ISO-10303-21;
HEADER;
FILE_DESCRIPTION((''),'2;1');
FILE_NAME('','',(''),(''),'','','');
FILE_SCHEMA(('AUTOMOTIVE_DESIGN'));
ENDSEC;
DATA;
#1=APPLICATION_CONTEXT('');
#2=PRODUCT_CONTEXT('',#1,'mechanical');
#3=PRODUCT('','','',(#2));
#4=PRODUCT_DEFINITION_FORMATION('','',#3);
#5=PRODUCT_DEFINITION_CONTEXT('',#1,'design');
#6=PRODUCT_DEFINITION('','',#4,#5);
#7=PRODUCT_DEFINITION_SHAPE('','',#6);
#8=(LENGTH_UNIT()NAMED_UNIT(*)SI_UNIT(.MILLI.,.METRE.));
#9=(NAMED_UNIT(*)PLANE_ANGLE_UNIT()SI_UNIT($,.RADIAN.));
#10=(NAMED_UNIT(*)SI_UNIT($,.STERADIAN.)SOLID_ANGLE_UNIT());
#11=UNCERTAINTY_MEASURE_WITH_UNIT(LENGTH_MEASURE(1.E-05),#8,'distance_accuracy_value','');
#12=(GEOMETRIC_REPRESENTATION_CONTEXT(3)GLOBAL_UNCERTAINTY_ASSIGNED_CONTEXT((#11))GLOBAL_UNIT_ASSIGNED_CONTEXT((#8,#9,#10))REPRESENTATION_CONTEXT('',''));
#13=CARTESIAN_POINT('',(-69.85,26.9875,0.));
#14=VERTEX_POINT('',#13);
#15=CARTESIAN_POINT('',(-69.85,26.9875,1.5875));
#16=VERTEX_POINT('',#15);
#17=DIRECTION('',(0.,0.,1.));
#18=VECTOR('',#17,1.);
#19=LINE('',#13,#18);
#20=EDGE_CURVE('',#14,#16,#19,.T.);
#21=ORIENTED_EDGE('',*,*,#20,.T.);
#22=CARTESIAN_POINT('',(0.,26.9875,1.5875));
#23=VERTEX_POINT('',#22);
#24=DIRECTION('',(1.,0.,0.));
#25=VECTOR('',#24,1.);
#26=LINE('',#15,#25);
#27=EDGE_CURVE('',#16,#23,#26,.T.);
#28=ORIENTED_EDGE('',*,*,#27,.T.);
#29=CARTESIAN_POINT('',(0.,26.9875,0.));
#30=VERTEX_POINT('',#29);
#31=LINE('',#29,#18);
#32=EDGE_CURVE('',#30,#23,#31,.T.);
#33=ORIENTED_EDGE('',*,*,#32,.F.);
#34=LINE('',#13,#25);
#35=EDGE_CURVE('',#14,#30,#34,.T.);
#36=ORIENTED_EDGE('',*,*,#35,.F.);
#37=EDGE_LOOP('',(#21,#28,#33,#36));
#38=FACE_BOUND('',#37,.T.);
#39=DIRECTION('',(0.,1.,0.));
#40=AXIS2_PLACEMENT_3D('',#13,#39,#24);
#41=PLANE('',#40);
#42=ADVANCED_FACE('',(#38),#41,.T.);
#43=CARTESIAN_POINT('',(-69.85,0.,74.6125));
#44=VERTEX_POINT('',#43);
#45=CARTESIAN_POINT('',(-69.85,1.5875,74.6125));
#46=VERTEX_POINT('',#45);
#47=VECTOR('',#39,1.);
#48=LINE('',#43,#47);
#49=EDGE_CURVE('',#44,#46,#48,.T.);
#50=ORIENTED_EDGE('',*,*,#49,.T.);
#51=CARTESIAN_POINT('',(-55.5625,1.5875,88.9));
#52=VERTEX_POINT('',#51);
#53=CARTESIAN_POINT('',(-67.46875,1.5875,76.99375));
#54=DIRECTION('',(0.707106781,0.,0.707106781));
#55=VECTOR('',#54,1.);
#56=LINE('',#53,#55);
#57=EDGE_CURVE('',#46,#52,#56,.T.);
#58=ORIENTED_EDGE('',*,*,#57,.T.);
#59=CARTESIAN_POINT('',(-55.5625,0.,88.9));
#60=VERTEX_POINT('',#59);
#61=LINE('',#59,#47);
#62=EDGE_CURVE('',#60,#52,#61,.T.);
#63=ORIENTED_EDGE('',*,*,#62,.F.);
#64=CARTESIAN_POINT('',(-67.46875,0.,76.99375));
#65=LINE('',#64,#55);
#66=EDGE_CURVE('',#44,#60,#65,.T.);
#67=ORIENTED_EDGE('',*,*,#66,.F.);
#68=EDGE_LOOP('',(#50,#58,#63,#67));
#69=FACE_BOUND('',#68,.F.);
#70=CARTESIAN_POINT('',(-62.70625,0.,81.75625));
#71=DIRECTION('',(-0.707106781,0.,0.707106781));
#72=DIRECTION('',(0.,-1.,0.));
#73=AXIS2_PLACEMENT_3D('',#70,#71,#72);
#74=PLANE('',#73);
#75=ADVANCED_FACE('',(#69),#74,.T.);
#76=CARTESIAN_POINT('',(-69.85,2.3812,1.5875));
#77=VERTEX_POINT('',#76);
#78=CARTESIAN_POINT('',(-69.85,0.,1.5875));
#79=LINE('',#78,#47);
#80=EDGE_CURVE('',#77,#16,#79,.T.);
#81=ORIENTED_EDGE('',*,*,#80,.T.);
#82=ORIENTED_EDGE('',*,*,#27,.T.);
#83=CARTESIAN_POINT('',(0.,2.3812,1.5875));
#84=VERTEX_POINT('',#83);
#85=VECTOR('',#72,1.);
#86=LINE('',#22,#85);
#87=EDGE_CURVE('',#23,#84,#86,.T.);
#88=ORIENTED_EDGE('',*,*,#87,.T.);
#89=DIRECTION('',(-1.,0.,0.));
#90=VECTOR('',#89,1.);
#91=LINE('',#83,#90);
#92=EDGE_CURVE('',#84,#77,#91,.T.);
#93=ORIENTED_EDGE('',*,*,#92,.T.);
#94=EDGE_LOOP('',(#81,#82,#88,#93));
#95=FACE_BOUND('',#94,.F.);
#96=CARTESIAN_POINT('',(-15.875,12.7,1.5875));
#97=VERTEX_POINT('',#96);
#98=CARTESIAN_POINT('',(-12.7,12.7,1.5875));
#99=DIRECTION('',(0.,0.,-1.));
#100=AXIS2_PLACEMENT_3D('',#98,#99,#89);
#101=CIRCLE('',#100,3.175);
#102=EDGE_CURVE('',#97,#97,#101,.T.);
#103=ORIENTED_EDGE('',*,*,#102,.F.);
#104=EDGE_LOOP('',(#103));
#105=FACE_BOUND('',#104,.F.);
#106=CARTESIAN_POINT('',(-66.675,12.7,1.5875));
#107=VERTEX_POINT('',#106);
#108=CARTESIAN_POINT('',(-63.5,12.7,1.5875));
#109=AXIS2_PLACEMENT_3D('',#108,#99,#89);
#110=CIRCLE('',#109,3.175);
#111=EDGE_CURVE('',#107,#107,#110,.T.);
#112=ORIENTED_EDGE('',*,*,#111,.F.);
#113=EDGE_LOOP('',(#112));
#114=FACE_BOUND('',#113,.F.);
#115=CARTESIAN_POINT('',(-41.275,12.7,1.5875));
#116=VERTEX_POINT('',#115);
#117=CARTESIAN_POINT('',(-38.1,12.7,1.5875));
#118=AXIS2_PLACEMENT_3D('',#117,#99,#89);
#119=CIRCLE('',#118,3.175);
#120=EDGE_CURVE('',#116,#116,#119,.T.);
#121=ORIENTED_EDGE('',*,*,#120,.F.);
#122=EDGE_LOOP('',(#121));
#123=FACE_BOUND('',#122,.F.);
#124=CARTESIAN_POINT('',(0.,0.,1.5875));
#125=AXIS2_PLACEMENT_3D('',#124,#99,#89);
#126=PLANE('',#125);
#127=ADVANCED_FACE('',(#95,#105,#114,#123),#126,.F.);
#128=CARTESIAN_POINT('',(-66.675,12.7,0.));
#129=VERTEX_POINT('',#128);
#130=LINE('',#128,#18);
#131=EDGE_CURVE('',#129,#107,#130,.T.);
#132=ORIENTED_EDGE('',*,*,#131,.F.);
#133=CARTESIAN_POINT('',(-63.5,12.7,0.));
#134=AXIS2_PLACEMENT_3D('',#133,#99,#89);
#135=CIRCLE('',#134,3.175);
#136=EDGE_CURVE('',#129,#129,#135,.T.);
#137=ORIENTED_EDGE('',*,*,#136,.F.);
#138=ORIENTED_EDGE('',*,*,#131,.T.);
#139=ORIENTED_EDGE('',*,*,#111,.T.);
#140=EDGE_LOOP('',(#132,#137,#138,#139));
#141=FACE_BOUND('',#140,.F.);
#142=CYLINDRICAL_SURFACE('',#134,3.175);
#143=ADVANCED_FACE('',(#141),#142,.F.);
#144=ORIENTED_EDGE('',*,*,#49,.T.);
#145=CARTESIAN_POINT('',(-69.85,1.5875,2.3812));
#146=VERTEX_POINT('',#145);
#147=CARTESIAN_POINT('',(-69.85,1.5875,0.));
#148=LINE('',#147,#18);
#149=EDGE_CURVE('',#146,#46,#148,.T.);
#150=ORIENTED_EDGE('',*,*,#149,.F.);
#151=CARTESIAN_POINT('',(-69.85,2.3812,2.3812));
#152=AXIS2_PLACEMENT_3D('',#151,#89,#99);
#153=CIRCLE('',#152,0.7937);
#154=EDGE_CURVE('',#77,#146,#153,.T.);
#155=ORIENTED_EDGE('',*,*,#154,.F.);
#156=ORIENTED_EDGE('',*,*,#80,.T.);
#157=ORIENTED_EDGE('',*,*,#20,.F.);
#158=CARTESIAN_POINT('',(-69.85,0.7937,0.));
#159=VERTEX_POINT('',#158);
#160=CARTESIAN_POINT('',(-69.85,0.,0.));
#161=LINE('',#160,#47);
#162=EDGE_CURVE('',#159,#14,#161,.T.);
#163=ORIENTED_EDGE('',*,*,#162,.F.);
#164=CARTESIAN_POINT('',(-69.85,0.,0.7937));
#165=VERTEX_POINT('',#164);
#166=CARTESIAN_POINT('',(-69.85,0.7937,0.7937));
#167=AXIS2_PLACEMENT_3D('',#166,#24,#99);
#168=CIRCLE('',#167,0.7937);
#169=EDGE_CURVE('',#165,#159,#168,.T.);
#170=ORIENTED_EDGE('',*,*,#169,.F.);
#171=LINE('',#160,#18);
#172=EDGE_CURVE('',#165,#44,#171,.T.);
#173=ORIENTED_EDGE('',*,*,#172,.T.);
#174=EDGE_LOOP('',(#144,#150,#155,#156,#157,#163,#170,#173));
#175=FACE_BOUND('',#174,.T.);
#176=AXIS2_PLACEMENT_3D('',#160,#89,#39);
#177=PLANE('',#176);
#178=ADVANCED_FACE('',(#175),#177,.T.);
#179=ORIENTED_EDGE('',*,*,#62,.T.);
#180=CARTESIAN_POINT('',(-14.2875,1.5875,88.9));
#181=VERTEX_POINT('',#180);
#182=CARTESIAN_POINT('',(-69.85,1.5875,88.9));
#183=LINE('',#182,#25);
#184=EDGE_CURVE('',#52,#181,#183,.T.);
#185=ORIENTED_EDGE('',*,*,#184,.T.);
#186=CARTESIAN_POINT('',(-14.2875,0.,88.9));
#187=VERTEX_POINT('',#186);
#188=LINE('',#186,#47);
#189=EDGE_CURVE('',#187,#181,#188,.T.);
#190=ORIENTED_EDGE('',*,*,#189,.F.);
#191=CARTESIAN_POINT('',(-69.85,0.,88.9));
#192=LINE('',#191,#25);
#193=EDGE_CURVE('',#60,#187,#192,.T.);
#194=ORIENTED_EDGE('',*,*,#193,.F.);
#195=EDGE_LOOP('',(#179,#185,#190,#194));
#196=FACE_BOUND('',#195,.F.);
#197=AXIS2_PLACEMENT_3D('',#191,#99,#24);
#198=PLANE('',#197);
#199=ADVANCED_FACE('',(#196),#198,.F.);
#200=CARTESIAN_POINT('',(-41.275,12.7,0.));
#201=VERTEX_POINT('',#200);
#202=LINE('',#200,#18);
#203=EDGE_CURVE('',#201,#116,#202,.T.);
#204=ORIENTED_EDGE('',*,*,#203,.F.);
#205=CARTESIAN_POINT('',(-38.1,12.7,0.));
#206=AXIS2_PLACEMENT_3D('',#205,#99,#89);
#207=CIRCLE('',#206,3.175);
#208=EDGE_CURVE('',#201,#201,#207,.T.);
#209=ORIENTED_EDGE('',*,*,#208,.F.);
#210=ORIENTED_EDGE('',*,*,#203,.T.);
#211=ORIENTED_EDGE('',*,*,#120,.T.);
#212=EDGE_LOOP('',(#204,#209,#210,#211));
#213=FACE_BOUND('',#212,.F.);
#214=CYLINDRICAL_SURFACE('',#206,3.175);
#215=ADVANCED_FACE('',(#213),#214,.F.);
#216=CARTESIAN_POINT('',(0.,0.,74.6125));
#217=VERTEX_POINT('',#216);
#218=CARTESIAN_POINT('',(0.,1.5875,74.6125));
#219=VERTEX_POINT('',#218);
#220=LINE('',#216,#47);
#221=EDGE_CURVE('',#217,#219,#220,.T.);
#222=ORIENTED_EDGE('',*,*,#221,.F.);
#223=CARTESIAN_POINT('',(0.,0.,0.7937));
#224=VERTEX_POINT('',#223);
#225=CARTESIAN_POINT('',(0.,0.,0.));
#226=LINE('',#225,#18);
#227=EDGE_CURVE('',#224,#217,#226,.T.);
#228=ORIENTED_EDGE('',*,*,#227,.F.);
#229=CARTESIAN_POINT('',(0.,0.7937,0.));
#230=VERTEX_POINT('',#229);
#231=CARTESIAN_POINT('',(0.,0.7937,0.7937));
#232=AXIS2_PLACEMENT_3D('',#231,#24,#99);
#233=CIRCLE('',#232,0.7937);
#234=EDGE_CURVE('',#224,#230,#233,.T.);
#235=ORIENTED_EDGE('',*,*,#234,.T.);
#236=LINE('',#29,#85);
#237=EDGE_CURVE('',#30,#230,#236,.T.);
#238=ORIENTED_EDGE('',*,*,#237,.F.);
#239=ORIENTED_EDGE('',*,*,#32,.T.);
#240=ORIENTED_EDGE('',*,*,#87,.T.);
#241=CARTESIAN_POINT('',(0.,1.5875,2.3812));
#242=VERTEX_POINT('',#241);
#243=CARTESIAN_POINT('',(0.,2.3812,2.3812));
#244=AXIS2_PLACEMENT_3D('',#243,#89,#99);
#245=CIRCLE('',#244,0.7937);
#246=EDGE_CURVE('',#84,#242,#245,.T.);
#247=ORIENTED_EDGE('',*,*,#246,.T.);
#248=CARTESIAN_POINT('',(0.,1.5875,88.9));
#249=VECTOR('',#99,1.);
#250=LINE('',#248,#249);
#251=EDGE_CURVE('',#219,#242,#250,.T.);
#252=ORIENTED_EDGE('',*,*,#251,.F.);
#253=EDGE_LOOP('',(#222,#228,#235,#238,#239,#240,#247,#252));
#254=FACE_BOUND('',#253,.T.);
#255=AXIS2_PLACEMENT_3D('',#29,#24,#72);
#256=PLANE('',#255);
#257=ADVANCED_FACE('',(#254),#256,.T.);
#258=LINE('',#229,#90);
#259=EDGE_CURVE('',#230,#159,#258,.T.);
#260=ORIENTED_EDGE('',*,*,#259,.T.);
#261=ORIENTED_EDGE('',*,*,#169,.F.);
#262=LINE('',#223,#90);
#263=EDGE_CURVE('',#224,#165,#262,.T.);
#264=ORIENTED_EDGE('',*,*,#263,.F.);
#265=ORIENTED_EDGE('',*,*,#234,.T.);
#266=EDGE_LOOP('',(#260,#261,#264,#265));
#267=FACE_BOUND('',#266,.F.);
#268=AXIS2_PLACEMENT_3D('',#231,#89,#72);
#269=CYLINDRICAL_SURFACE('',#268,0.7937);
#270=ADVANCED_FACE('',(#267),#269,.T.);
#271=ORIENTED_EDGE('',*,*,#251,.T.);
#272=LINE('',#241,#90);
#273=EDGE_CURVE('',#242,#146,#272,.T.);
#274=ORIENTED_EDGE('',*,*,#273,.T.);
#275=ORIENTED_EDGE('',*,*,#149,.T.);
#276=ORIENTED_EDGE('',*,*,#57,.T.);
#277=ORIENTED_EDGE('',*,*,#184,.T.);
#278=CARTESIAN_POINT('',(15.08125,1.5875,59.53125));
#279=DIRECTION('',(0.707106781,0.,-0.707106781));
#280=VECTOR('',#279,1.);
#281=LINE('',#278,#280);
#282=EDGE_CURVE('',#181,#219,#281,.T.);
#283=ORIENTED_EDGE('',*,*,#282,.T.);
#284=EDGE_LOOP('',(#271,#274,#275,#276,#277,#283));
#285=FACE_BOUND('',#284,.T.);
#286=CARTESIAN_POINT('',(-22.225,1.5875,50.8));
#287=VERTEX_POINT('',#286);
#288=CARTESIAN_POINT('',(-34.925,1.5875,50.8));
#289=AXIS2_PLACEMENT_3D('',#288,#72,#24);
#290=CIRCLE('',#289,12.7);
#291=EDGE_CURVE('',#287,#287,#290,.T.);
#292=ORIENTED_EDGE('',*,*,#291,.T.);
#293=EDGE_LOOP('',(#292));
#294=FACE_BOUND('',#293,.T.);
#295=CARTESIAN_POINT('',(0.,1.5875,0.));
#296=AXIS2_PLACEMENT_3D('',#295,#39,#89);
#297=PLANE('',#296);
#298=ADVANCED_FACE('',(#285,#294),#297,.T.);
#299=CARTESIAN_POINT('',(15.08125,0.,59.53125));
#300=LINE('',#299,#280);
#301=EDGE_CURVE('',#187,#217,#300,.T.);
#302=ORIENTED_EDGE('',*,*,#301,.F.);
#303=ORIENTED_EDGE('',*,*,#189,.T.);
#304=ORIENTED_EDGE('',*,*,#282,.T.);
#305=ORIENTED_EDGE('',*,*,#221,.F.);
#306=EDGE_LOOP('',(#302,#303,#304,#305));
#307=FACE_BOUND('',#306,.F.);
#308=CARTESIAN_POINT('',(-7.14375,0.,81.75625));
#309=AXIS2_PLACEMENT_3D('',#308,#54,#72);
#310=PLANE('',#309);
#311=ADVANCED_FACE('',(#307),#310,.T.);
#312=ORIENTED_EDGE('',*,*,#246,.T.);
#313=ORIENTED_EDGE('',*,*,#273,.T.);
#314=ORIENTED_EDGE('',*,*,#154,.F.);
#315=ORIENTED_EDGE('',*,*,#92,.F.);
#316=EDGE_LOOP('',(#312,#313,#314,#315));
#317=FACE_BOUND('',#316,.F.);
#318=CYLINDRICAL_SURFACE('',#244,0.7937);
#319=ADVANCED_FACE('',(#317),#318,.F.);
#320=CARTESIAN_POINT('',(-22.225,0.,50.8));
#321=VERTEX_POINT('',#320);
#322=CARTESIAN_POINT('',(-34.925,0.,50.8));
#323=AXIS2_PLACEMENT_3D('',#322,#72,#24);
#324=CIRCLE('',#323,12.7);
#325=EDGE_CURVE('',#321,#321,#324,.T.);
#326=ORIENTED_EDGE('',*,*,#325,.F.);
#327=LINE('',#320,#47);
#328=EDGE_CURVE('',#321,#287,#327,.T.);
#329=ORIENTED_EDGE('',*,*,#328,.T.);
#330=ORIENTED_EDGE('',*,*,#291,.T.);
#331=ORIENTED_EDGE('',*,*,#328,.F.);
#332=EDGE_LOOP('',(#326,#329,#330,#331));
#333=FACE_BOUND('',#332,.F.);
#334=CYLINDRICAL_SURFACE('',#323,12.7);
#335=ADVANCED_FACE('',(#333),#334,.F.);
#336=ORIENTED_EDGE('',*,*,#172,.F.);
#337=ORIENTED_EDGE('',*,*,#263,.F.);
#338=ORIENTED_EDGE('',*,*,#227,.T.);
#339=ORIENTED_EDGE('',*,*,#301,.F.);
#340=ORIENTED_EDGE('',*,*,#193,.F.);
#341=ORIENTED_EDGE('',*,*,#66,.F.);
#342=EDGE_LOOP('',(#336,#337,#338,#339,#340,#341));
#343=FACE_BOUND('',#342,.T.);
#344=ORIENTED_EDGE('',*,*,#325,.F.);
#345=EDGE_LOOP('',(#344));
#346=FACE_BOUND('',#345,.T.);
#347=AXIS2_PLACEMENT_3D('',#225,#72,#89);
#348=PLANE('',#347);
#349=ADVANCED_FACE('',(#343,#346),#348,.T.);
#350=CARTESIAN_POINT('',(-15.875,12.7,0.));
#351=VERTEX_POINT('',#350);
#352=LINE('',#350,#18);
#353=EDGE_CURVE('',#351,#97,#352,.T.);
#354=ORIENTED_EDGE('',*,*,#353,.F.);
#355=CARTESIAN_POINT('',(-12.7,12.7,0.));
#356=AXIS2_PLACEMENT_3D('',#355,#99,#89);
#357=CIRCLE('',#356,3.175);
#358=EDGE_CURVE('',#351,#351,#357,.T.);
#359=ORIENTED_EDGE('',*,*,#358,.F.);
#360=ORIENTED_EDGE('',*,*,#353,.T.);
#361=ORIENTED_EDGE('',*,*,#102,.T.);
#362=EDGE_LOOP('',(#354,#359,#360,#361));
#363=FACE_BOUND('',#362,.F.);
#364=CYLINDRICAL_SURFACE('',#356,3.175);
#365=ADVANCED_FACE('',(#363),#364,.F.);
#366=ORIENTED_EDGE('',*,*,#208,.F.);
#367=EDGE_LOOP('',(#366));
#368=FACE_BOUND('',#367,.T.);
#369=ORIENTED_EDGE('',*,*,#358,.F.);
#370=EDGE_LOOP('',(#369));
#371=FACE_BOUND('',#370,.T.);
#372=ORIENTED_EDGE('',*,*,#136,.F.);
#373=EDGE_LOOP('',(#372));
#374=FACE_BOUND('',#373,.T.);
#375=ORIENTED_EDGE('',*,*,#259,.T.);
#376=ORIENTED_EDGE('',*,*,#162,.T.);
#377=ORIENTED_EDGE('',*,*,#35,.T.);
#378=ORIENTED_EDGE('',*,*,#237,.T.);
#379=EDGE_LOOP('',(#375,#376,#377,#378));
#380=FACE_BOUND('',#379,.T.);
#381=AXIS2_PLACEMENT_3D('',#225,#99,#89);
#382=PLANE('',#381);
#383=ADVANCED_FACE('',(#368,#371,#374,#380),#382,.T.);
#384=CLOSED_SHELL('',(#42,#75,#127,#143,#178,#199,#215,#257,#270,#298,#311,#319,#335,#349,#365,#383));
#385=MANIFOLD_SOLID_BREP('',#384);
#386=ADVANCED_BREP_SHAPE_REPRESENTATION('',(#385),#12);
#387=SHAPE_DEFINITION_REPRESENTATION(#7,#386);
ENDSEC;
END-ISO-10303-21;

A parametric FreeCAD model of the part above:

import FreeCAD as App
import Part
import Sketcher
Q = App.Units.Quantity


def edges_at(feature, points):
    """Names of the edges that pass closest to the given points."""
    edges = feature.Shape.Edges
    near = lambda p: min(range(len(edges)), key=lambda i: edges[i].distToShape(Part.Vertex(*p))[0])
    return sorted({f"Edge{near(p) + 1}" for p in points})

doc = App.newDocument("Part")
body = doc.addObject("PartDesign::Body", "Body")

sketch1 = doc.addObject("Sketcher::SketchObject", "Sketch")
body.addObject(sketch1)
sketch1.AttachmentSupport = (doc.XZ_Plane, [""])
sketch1.MapMode = "FlatFace"
sketch1.addGeometry([
    Part.LineSegment(App.Vector(-69.85, 0, 0), App.Vector(-69.85, 88.9, 0)),
    Part.LineSegment(App.Vector(-69.85, 88.9, 0), App.Vector(0, 88.9, 0)),
    Part.LineSegment(App.Vector(0, 88.9, 0), App.Vector(0, 0, 0)),
    Part.LineSegment(App.Vector(0, 0, 0), App.Vector(-69.85, 0, 0)),
], False)
sketch1.addConstraint([
    Sketcher.Constraint("Coincident", 0, 2, 1, 1),
    Sketcher.Constraint("Coincident", 1, 2, 2, 1),
    Sketcher.Constraint("Coincident", 2, 2, 3, 1),
    Sketcher.Constraint("Coincident", 3, 2, 0, 1),
    Sketcher.Constraint("Vertical", 0),
    Sketcher.Constraint("Horizontal", 1),
    Sketcher.Constraint("Vertical", 2),
    Sketcher.Constraint("Horizontal", 3),
    Sketcher.Constraint("Coincident", 2, 2, -1, 1),
    Sketcher.Constraint("DistanceY", 0, 1, 0, 2, Q("3.5 in")),
    Sketcher.Constraint("DistanceX", 1, 1, 1, 2, Q("2.75 in")),
])
pad1 = doc.addObject("PartDesign::Pad", "Pad")
body.addObject(pad1)
pad1.Profile = sketch1
pad1.Length = Q("0.0625 in")
pad1.Reversed = True
doc.recompute()

chamfer = doc.addObject("PartDesign::Chamfer", "Chamfer")
body.addObject(chamfer)
chamfer.Base = (pad1, edges_at(pad1, [(-69.85, 0.794, 88.9)]))
chamfer.Size = Q("0.5625 in")
doc.recompute()

chamfer2 = doc.addObject("PartDesign::Chamfer", "Chamfer001")
body.addObject(chamfer2)
chamfer2.Base = (chamfer, edges_at(chamfer, [(0, 0.794, 88.9)]))
chamfer2.Size = Q("0.5625 in")

sketch2 = doc.addObject("Sketcher::SketchObject", "Sketch001")
body.addObject(sketch2)
sketch2.AttachmentSupport = (doc.YZ_Plane, [""])
sketch2.MapMode = "FlatFace"
sketch2.addGeometry([
    Part.LineSegment(App.Vector(0, 1.5875, 0), App.Vector(0, 0, 0)),
    Part.LineSegment(App.Vector(0, 0, 0), App.Vector(1.5875, 0, 0)),
    Part.LineSegment(App.Vector(1.5875, 0, 0), App.Vector(1.5875, 1.5875, 0)),
    Part.LineSegment(App.Vector(1.5875, 1.5875, 0), App.Vector(0, 1.5875, 0)),
], False)
sketch2.addConstraint([
    Sketcher.Constraint("Coincident", 0, 2, 1, 1),
    Sketcher.Constraint("Coincident", 1, 2, 2, 1),
    Sketcher.Constraint("Coincident", 2, 2, 3, 1),
    Sketcher.Constraint("Coincident", 3, 2, 0, 1),
    Sketcher.Constraint("Vertical", 0),
    Sketcher.Constraint("Horizontal", 1),
    Sketcher.Constraint("Vertical", 2),
    Sketcher.Constraint("Horizontal", 3),
    Sketcher.Constraint("Coincident", 0, 2, -1, 1),
    Sketcher.Constraint("Equal", 3, 0),
    Sketcher.Constraint("DistanceX", 1, 1, 1, 2, Q("0.0625 in")),
])
pocket1 = doc.addObject("PartDesign::Pocket", "Pocket")
body.addObject(pocket1)
pocket1.Profile = sketch2
pocket1.Length = Q("2.75 in")

sketch3 = doc.addObject("Sketcher::SketchObject", "Sketch002")
body.addObject(sketch3)
sketch3.AttachmentSupport = (doc.XY_Plane, [""])
sketch3.MapMode = "FlatFace"
sketch3.addGeometry([
    Part.LineSegment(App.Vector(-69.85, 0, 0), App.Vector(-69.85, 26.9875, 0)),
    Part.LineSegment(App.Vector(-69.85, 26.9875, 0), App.Vector(0, 26.9875, 0)),
    Part.LineSegment(App.Vector(0, 26.9875, 0), App.Vector(0, 0, 0)),
    Part.LineSegment(App.Vector(0, 0, 0), App.Vector(-69.85, 0, 0)),
], False)
sketch3.addConstraint([
    Sketcher.Constraint("Coincident", 0, 2, 1, 1),
    Sketcher.Constraint("Coincident", 1, 2, 2, 1),
    Sketcher.Constraint("Coincident", 2, 2, 3, 1),
    Sketcher.Constraint("Coincident", 3, 2, 0, 1),
    Sketcher.Constraint("Vertical", 0),
    Sketcher.Constraint("Horizontal", 1),
    Sketcher.Constraint("Vertical", 2),
    Sketcher.Constraint("Horizontal", 3),
    Sketcher.Constraint("Coincident", 2, 2, -1, 1),
    Sketcher.Constraint("DistanceX", 1, 1, 1, 2, Q("2.75 in")),
    Sketcher.Constraint("DistanceY", 0, 1, 0, 2, Q("1.0625 in")),
])
pad2 = doc.addObject("PartDesign::Pad", "Pad001")
body.addObject(pad2)
pad2.Profile = sketch3
pad2.Length = Q("0.0625 in")
doc.recompute()

fillet = doc.addObject("PartDesign::Fillet", "Fillet")
body.addObject(fillet)
fillet.Base = (pad2, edges_at(pad2, [(-34.925, 1.587, 1.587)]))
fillet.Radius = Q("0.031248 in")
doc.recompute()

fillet2 = doc.addObject("PartDesign::Fillet", "Fillet001")
body.addObject(fillet2)
fillet2.Base = (fillet, edges_at(fillet, [(-34.925, 0, 0)]))
fillet2.Radius = Q("0.031248 in")

sketch4 = doc.addObject("Sketcher::SketchObject", "Sketch003")
body.addObject(sketch4)
sketch4.AttachmentSupport = (doc.XY_Plane, [""])
sketch4.MapMode = "FlatFace"
sketch4.addGeometry(Part.Circle(App.Vector(-12.7, 12.7, 0), App.Vector(0, 0, 1), 3.175), False)
sketch4.addConstraint([
    Sketcher.Constraint("Diameter", 0, Q("0.25 in")),
    Sketcher.Constraint("DistanceX", 0, 3, -1, 1, Q("0.5 in")),
    Sketcher.Constraint("DistanceY", -1, 1, 0, 3, Q("0.5 in")),
])
pocket2 = doc.addObject("PartDesign::Pocket", "Pocket001")
body.addObject(pocket2)
pocket2.Profile = sketch4
pocket2.Length = Q("0.0625 in")
pocket2.Reversed = True

sketch5 = doc.addObject("Sketcher::SketchObject", "Sketch004")
body.addObject(sketch5)
sketch5.AttachmentSupport = (doc.XY_Plane, [""])
sketch5.MapMode = "FlatFace"
sketch5.addGeometry(Part.Circle(App.Vector(-63.5, 12.7, 0), App.Vector(0, 0, 1), 3.175), False)
sketch5.addConstraint([
    Sketcher.Constraint("Diameter", 0, Q("0.25 in")),
    Sketcher.Constraint("DistanceX", 0, 3, -1, 1, Q("2.5 in")),
    Sketcher.Constraint("DistanceY", -1, 1, 0, 3, Q("0.5 in")),
])
pocket3 = doc.addObject("PartDesign::Pocket", "Pocket002")
body.addObject(pocket3)
pocket3.Profile = sketch5
pocket3.Length = Q("0.0625 in")
pocket3.Reversed = True

sketch6 = doc.addObject("Sketcher::SketchObject", "Sketch005")
body.addObject(sketch6)
sketch6.AttachmentSupport = (doc.XY_Plane, [""])
sketch6.MapMode = "FlatFace"
sketch6.addGeometry(Part.Circle(App.Vector(-38.1, 12.7, 0), App.Vector(0, 0, 1), 3.175), False)
sketch6.addConstraint([
    Sketcher.Constraint("Diameter", 0, Q("0.25 in")),
    Sketcher.Constraint("DistanceX", 0, 3, -1, 1, Q("1.5 in")),
    Sketcher.Constraint("DistanceY", -1, 1, 0, 3, Q("0.5 in")),
])
pocket4 = doc.addObject("PartDesign::Pocket", "Pocket003")
body.addObject(pocket4)
pocket4.Profile = sketch6
pocket4.Length = Q("0.0625 in")
pocket4.Reversed = True

sketch7 = doc.addObject("Sketcher::SketchObject", "Sketch006")
body.addObject(sketch7)
sketch7.AttachmentSupport = (doc.XZ_Plane, [""])
sketch7.MapMode = "FlatFace"
sketch7.addGeometry(Part.Circle(App.Vector(-34.925, 50.8, 0), App.Vector(0, 0, 1), 12.7), False)
sketch7.addConstraint([
    Sketcher.Constraint("Diameter", 0, Q("1 in")),
    Sketcher.Constraint("DistanceY", -1, 1, 0, 3, Q("2 in")),
    Sketcher.Constraint("DistanceX", 0, 3, -1, 1, Q("1.375 in")),
])
pocket5 = doc.addObject("PartDesign::Pocket", "Pocket004")
body.addObject(pocket5)
pocket5.Profile = sketch7
pocket5.Length = Q("0.0625 in")

doc.recompute()
